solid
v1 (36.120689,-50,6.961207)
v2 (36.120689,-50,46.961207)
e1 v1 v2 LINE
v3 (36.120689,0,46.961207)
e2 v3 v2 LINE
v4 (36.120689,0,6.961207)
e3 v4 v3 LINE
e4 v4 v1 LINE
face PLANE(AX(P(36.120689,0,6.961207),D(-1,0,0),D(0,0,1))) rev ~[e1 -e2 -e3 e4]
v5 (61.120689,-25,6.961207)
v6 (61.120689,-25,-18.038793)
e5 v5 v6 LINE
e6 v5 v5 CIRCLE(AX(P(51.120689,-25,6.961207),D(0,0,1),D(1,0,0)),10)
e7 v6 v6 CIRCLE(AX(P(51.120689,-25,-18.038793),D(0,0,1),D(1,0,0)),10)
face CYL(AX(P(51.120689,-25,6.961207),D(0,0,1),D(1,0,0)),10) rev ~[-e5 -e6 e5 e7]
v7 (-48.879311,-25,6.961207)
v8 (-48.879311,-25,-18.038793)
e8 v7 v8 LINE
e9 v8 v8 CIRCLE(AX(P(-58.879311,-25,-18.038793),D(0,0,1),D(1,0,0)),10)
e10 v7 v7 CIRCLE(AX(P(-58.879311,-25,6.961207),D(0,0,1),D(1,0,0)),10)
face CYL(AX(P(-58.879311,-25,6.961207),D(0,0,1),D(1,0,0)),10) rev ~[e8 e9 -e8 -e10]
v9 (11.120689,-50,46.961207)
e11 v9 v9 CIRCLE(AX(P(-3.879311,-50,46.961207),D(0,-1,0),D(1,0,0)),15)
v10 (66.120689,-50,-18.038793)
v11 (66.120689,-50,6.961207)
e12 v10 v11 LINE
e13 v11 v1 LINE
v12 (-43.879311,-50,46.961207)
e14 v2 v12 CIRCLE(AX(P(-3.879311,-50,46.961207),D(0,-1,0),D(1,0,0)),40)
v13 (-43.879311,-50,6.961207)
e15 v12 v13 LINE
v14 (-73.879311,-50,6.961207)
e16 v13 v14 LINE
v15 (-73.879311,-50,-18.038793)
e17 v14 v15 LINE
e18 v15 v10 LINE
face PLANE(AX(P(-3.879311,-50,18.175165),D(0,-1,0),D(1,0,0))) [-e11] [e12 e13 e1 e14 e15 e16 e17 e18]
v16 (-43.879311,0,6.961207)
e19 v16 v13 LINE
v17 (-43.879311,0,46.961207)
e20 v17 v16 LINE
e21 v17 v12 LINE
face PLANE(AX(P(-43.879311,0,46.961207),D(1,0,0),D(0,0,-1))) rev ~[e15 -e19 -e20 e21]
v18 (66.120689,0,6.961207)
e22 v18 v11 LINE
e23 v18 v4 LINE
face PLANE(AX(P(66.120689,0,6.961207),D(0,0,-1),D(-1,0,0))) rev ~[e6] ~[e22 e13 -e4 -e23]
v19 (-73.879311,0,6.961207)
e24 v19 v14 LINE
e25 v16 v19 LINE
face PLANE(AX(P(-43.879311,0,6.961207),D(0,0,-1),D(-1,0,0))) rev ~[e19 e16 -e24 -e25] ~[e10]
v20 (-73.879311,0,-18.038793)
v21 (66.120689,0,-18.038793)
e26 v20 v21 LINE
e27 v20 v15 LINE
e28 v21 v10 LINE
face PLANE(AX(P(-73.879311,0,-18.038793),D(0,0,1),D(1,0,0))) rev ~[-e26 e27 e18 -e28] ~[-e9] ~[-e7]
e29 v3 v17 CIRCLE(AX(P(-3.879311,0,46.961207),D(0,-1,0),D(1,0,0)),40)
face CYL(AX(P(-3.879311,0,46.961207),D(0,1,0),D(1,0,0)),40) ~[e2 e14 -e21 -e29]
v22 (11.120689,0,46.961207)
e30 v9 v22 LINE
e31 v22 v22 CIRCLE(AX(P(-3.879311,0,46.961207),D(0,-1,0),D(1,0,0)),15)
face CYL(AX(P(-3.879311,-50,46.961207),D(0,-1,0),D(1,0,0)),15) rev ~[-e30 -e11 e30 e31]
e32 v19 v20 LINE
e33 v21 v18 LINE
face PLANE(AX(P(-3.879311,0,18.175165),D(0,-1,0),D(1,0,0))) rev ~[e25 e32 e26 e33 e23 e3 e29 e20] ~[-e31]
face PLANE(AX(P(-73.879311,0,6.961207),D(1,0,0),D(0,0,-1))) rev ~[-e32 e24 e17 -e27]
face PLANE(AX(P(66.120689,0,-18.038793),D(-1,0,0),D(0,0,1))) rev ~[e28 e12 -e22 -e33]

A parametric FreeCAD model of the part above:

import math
import FreeCAD as App
import Part
import Sketcher
Q = App.Units.Quantity

doc = App.newDocument("Part")
body = doc.addObject("PartDesign::Body", "Body")

# Sketch on XZ plane
sketch1 = body.newObject("Sketcher::SketchObject", "Sketch")
sketch1.AttachmentSupport = (doc.getObject("XZ_Plane"), [""])
sketch1.MapMode = "FlatFace"
sketch1.addGeometry([
    Part.LineSegment(App.Vector(-74, 7, 0), App.Vector(-74, -18, 0)),  # 0
    Part.LineSegment(App.Vector(-74, -18, 0), App.Vector(66, -18, 0)),  # 1
    Part.LineSegment(App.Vector(66, -18, 0), App.Vector(66, 7, 0)),  # 2
    Part.LineSegment(App.Vector(66, 7, 0), App.Vector(36, 7, 0)),  # 3
    Part.LineSegment(App.Vector(36, 7, 0), App.Vector(36, 47, 0)),  # 4
    Part.ArcOfCircle(Part.Circle(App.Vector(-4, 47, 0), App.Vector(0, 0, 1), 40), math.radians(0), math.radians(180)),  # 5
    Part.LineSegment(App.Vector(-44, 47, 0), App.Vector(-44, 7, 0)),  # 6
    Part.LineSegment(App.Vector(-44, 7, 0), App.Vector(-74, 7, 0)),  # 7
], False)
sketch1.addConstraint([
    Sketcher.Constraint("Coincident", 0, 2, 1, 1),
    Sketcher.Constraint("Coincident", 1, 2, 2, 1),
    Sketcher.Constraint("Coincident", 2, 2, 3, 1),
    Sketcher.Constraint("Coincident", 3, 2, 4, 1),
    Sketcher.Constraint("Tangent", 4, 2, 5, 1),
    Sketcher.Constraint("Tangent", 5, 2, 6, 1),
    Sketcher.Constraint("Coincident", 6, 2, 7, 1),
    Sketcher.Constraint("Coincident", 7, 2, 0, 1),
    Sketcher.Constraint("Vertical", 0),
    Sketcher.Constraint("Horizontal", 1),
    Sketcher.Constraint("Vertical", 2),
    Sketcher.Constraint("Horizontal", 3),
    Sketcher.Constraint("Vertical", 4),
    Sketcher.Constraint("Vertical", 6),
    Sketcher.Constraint("Horizontal", 7),
    Sketcher.Constraint("Horizontal", 3, 2, 6, 2),
    Sketcher.Constraint("Equal", 3, 7),
    Sketcher.Constraint("Radius", 5, Q("40 mm")),
    Sketcher.Constraint("DistanceX", 1, 1, 1, 2, Q("140 mm")),
    Sketcher.Constraint("DistanceY", 0, 2, 0, 1, Q("25 mm")),
    Sketcher.Constraint("DistanceY", 4, 1, 4, 2, Q("40 mm")),
    Sketcher.Constraint("DistanceX", 5, 3, -1, 1, Q("3.879311 mm")),
    Sketcher.Constraint("DistanceY", -1, 1, 5, 3, Q("46.961207 mm")),
])
pad1 = body.newObject("PartDesign::Pad", "Pad")
pad1.Profile = sketch1
pad1.Length = 50

# Sketch on XZ plane
sketch2 = body.newObject("Sketcher::SketchObject", "Sketch001")
sketch2.AttachmentSupport = (doc.getObject("XZ_Plane"), [""])
sketch2.MapMode = "FlatFace"
sketch2.AttachmentOffset = App.Placement(App.Vector(0, 0, 50), App.Rotation())
sketch2.addGeometry(Part.Circle(App.Vector(-4, 47, 0), App.Vector(0, 0, 1), 15), False)
sketch2.addConstraint([
    Sketcher.Constraint("Diameter", 0, Q("30 mm")),
    Sketcher.Constraint("DistanceX", 0, 3, -1, 1, Q("3.879311 mm")),
    Sketcher.Constraint("DistanceY", -1, 1, 0, 3, Q("46.961207 mm")),
])
pocket1 = body.newObject("PartDesign::Pocket", "Pocket")
pocket1.Profile = sketch2
pocket1.Length = 50

# Sketch on XY plane
sketch3 = body.newObject("Sketcher::SketchObject", "Sketch002")
sketch3.AttachmentSupport = (doc.getObject("XY_Plane"), [""])
sketch3.MapMode = "FlatFace"
sketch3.AttachmentOffset = App.Placement(App.Vector(0, 0, 6.961207), App.Rotation())
sketch3.addGeometry(Part.Circle(App.Vector(-59, -25, 0), App.Vector(0, 0, 1), 10), False)
sketch3.addConstraint([
    Sketcher.Constraint("Diameter", 0, Q("20 mm")),
    Sketcher.Constraint("DistanceY", 0, 3, -1, 1, Q("25 mm")),
    Sketcher.Constraint("DistanceX", 0, 3, -1, 1, Q("58.879311 mm")),
])
pocket2 = body.newObject("PartDesign::Pocket", "Pocket001")
pocket2.Profile = sketch3
pocket2.Length = 25

# Sketch on XY plane
sketch4 = body.newObject("Sketcher::SketchObject", "Sketch003")
sketch4.AttachmentSupport = (doc.getObject("XY_Plane"), [""])
sketch4.MapMode = "FlatFace"
sketch4.AttachmentOffset = App.Placement(App.Vector(0, 0, 6.961207), App.Rotation())
sketch4.addGeometry(Part.Circle(App.Vector(51, -25, 0), App.Vector(0, 0, 1), 10), False)
sketch4.addConstraint([
    Sketcher.Constraint("Diameter", 0, Q("20 mm")),
    Sketcher.Constraint("DistanceY", 0, 3, -1, 1, Q("25 mm")),
    Sketcher.Constraint("DistanceX", -1, 1, 0, 3, Q("51.120689 mm")),
])
pocket3 = body.newObject("PartDesign::Pocket", "Pocket002")
pocket3.Profile = sketch4
pocket3.Length = 25

doc.recompute()
